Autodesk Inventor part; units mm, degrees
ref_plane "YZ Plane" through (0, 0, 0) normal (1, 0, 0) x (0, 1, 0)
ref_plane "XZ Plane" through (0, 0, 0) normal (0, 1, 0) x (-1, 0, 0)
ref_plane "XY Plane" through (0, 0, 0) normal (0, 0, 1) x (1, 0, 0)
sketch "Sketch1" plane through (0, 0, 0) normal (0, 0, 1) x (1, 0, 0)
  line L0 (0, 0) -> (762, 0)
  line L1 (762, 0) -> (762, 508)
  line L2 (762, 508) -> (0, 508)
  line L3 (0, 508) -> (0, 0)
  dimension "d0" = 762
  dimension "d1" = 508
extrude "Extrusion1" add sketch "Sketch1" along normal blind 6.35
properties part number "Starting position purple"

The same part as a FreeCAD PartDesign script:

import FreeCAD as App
import Part
import Sketcher
Q = App.Units.Quantity

doc = App.newDocument("Part")
body = doc.addObject("PartDesign::Body", "Body")

# Sketch on XY plane
sketch1 = body.newObject("Sketcher::SketchObject", "Sketch")
sketch1.AttachmentSupport = (doc.getObject("XY_Plane"), [""])
sketch1.MapMode = "FlatFace"
sketch1.addGeometry(Part.LineSegment(App.Vector(0, 508, 0), App.Vector(0, 0, 0)), False)
sketch1.addGeometry(Part.LineSegment(App.Vector(0, 0, 0), App.Vector(762, 0, 0)), False)
sketch1.addGeometry(Part.LineSegment(App.Vector(762, 0, 0), App.Vector(762, 508, 0)), False)
sketch1.addGeometry(Part.LineSegment(App.Vector(762, 508, 0), App.Vector(0, 508, 0)), False)
sketch1.addConstraint(Sketcher.Constraint("Coincident", 0, 2, 1, 1))
sketch1.addConstraint(Sketcher.Constraint("Coincident", 1, 2, 2, 1))
sketch1.addConstraint(Sketcher.Constraint("Coincident", 2, 2, 3, 1))
sketch1.addConstraint(Sketcher.Constraint("Coincident", 3, 2, 0, 1))
sketch1.addConstraint(Sketcher.Constraint("Vertical", 0))
sketch1.addConstraint(Sketcher.Constraint("Horizontal", 1))
sketch1.addConstraint(Sketcher.Constraint("Vertical", 2))
sketch1.addConstraint(Sketcher.Constraint("Horizontal", 3))
sketch1.addConstraint(Sketcher.Constraint("Coincident", 0, 2, -1, 1))
sketch1.addConstraint(Sketcher.Constraint("DistanceX", 1, 1, 1, 2, Q("30 in")))
sketch1.addConstraint(Sketcher.Constraint("DistanceY", 0, 2, 0, 1, Q("20 in")))
pad1 = body.newObject("PartDesign::Pad", "Pad")
pad1.Profile = sketch1
pad1.Length = Q("0.25 in")

doc.recompute()
